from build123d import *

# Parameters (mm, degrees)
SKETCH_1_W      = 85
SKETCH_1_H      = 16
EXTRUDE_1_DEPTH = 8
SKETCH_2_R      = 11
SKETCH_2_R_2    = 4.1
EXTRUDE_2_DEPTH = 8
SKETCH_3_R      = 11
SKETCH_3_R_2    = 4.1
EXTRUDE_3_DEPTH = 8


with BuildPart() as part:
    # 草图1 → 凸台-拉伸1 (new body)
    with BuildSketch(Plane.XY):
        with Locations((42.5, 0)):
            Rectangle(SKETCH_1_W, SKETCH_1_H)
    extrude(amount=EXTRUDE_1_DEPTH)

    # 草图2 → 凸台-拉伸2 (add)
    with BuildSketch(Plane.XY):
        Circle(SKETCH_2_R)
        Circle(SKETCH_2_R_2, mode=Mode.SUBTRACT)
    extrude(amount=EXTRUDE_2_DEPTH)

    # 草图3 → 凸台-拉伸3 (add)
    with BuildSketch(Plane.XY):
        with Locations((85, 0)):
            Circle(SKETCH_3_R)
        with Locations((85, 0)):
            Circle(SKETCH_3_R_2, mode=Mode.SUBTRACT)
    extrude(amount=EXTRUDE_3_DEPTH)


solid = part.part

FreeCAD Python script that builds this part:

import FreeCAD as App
import Part
import Sketcher

doc = App.newDocument("Part")
body = doc.addObject("PartDesign::Body", "Body")

sketch1 = doc.addObject("Sketcher::SketchObject", "Sketch")
body.addObject(sketch1)
sketch1.AttachmentSupport = (doc.XY_Plane, [""])
sketch1.MapMode = "FlatFace"
sketch1.addGeometry([
    Part.LineSegment(App.Vector(0, 8, 0), App.Vector(0, -8, 0)),
    Part.LineSegment(App.Vector(0, -8, 0), App.Vector(85, -8, 0)),
    Part.LineSegment(App.Vector(85, -8, 0), App.Vector(85, 8, 0)),
    Part.LineSegment(App.Vector(85, 8, 0), App.Vector(0, 8, 0)),
], False)
sketch1.addConstraint([
    Sketcher.Constraint("Coincident", 0, 2, 1, 1),
    Sketcher.Constraint("Coincident", 1, 2, 2, 1),
    Sketcher.Constraint("Coincident", 2, 2, 3, 1),
    Sketcher.Constraint("Coincident", 3, 2, 0, 1),
    Sketcher.Constraint("Vertical", 0),
    Sketcher.Constraint("Horizontal", 1),
    Sketcher.Constraint("Vertical", 2),
    Sketcher.Constraint("Horizontal", 3),
    Sketcher.Constraint("Symmetric", 0, 2, 3, 2, -1, 1),
    Sketcher.Constraint("DistanceX", 1, 1, 1, 2, 85.0),
    Sketcher.Constraint("DistanceY", 0, 2, 0, 1, 16.0),
])
pad1 = doc.addObject("PartDesign::Pad", "Pad")
body.addObject(pad1)
pad1.Profile = sketch1
pad1.Length = 8

sketch2 = doc.addObject("Sketcher::SketchObject", "Sketch001")
body.addObject(sketch2)
sketch2.AttachmentSupport = (doc.XY_Plane, [""])
sketch2.MapMode = "FlatFace"
sketch2.addGeometry([
    Part.Circle(App.Vector(0, 0, 0), App.Vector(0, 0, 1), 11),
    Part.Circle(App.Vector(0, 0, 0), App.Vector(0, 0, 1), 4.1),
], False)
sketch2.addConstraint([
    Sketcher.Constraint("Coincident", 0, 3, -1, 1),
    Sketcher.Constraint("Coincident", 1, 3, -1, 1),
    Sketcher.Constraint("Diameter", 0, 22.0),
    Sketcher.Constraint("Diameter", 1, 8.2),
])
pad2 = doc.addObject("PartDesign::Pad", "Pad001")
body.addObject(pad2)
pad2.Profile = sketch2
pad2.Length = 8

sketch3 = doc.addObject("Sketcher::SketchObject", "Sketch002")
body.addObject(sketch3)
sketch3.AttachmentSupport = (doc.XY_Plane, [""])
sketch3.MapMode = "FlatFace"
sketch3.addGeometry([
    Part.Circle(App.Vector(85, 0, 0), App.Vector(0, 0, 1), 11),
    Part.Circle(App.Vector(85, 0, 0), App.Vector(0, 0, 1), 4.1),
], False)
sketch3.addConstraint([
    Sketcher.Constraint("Coincident", 1, 3, 0, 3),
    Sketcher.Constraint("PointOnObject", 0, 3, -1),
    Sketcher.Constraint("Diameter", 0, 22.0),
    Sketcher.Constraint("Diameter", 1, 8.2),
    Sketcher.Constraint("DistanceX", -1, 1, 0, 3, 85.0),
])
pad3 = doc.addObject("PartDesign::Pad", "Pad002")
body.addObject(pad3)
pad3.Profile = sketch3
pad3.Length = 8

doc.recompute()
